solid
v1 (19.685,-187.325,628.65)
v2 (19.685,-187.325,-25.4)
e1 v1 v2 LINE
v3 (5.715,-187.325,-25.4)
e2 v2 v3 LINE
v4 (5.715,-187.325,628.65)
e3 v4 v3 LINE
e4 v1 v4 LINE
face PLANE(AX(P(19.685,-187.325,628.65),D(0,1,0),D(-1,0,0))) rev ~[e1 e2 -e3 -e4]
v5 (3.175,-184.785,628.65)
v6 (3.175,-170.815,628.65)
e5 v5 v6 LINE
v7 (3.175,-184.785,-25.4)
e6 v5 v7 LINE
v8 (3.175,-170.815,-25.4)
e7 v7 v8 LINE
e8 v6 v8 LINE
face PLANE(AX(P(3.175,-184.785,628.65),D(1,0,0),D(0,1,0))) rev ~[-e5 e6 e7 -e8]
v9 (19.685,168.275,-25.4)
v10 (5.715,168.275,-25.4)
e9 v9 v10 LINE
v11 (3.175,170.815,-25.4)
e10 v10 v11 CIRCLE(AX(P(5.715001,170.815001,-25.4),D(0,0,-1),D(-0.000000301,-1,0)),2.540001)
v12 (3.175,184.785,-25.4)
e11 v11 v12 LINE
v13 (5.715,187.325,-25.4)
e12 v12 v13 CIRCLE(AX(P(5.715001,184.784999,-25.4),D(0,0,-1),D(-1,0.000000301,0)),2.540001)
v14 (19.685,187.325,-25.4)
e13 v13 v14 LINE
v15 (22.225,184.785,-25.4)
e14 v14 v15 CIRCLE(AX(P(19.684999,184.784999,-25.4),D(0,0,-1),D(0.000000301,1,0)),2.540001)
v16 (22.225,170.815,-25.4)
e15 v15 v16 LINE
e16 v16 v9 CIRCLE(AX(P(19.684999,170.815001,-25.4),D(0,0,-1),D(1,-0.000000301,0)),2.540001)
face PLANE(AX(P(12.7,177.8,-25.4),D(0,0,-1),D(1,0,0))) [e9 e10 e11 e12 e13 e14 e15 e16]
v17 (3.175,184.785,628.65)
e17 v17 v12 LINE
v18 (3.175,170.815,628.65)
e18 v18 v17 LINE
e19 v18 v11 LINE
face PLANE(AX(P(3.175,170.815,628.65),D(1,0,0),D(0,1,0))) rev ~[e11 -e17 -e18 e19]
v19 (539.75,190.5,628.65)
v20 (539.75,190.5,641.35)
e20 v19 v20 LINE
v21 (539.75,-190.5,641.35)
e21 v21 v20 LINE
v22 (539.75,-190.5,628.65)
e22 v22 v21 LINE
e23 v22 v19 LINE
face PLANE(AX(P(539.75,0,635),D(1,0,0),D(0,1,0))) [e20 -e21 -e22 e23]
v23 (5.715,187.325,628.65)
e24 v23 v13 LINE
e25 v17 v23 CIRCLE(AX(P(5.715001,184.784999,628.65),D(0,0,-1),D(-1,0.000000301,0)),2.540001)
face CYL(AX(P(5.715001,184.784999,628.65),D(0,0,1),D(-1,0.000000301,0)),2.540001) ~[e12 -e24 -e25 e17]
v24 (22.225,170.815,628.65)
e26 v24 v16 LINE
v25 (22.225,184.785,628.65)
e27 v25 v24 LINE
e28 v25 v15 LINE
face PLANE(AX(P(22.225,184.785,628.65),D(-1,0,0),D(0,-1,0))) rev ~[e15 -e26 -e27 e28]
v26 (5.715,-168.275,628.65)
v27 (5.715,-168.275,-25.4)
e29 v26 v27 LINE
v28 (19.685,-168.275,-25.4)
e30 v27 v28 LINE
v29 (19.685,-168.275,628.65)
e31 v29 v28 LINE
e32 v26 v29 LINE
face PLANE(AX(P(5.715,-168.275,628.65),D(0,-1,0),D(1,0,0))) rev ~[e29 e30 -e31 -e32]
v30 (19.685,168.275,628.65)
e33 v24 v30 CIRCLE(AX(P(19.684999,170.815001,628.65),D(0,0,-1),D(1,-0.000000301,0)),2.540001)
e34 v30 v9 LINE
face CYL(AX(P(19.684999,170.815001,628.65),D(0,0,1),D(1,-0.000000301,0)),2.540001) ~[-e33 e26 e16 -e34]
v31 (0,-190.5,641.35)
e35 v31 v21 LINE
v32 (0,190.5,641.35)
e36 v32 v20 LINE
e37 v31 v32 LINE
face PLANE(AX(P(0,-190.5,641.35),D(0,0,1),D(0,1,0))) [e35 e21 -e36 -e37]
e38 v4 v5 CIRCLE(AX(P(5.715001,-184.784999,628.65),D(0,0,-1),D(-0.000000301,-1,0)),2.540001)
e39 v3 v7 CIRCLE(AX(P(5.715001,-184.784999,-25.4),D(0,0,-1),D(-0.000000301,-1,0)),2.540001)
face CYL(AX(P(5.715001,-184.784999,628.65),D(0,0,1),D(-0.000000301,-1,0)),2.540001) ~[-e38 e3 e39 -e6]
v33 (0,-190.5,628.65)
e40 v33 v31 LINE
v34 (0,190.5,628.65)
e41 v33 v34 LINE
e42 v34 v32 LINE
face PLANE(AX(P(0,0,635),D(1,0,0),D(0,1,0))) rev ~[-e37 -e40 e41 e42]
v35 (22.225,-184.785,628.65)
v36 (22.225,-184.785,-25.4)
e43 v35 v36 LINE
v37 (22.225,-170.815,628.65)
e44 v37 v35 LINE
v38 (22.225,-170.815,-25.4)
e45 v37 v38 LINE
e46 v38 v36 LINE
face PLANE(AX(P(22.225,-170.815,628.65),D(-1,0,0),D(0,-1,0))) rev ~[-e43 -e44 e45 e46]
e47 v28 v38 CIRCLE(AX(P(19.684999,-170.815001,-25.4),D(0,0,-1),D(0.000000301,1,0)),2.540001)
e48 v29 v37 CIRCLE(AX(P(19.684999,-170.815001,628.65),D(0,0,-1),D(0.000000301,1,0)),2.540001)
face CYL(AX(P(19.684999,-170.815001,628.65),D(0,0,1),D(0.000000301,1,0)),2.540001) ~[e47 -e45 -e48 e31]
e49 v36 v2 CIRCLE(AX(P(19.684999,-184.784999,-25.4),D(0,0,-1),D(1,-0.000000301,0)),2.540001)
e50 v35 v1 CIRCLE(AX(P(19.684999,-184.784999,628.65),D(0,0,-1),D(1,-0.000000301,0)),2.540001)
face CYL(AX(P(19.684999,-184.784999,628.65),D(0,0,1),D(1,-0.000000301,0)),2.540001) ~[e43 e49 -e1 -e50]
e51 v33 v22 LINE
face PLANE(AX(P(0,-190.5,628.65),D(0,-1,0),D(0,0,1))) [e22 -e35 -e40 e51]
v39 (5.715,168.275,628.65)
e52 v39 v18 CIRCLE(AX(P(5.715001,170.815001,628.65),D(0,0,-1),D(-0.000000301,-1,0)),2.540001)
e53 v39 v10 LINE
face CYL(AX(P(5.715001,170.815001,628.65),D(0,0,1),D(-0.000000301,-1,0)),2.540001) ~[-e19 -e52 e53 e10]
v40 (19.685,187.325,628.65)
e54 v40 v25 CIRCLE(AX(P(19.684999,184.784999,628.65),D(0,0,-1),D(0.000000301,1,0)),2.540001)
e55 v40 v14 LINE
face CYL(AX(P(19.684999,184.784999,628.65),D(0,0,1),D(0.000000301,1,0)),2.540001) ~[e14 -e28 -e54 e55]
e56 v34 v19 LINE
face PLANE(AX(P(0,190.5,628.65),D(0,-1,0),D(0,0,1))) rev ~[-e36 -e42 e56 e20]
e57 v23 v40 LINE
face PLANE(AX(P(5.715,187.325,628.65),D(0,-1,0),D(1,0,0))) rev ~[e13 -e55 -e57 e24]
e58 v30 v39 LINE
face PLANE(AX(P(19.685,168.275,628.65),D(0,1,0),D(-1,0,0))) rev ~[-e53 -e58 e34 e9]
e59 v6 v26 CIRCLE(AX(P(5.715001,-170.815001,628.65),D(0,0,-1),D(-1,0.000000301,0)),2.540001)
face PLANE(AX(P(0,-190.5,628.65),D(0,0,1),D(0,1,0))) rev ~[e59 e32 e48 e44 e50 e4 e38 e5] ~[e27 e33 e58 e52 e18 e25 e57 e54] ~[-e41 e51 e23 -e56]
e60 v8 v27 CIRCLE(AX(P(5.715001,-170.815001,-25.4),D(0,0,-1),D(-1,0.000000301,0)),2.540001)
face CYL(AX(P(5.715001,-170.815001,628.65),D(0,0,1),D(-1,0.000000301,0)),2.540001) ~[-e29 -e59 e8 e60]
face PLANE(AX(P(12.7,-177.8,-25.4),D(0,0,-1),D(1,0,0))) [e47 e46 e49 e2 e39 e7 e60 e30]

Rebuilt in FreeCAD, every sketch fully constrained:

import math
import FreeCAD as App
import Part
import Sketcher
from FreeCAD import Vector
Q = App.Units.Quantity


def add_polygon(sketch, points):
    """Adds a closed chain of lines whose ends are joined by coincident constraints."""
    first, n = sketch.GeometryCount, len(points)
    for a, b in zip(points, points[1:] + points[:1]):
        sketch.addGeometry(Part.LineSegment(App.Vector(*a, 0), App.Vector(*b, 0)), False)
    for i in range(n):
        sketch.addConstraint(Sketcher.Constraint("Coincident", first + i, 2, first + (i + 1) % n, 1))

doc = App.newDocument("Part")
params = doc.addObject("Spreadsheet::Sheet", "Params")
for row, (alias, value) in enumerate([
    ("sketch1_width", "15 in"),
    ("sketch1_height", "0.5 in"),
    ("pad1_length", "21.25 in"),
    ("sketch2_radius", "0.1 in"),
    ("sketch2_width", "0.55 in"),
    ("pad2_length", "25.75 in"),
], start=1):
    params.set(f"A{row}", alias)
    params.set(f"B{row}", "=" + value)
    params.setAlias(f"B{row}", alias)

body = doc.addObject("PartDesign::Body", "Body")

sketch1 = doc.addObject("Sketcher::SketchObject", "Sketch")
body.addObject(sketch1)
sketch1.AttachmentSupport = (doc.YZ_Plane, [""])
sketch1.MapMode = "FlatFace"
add_polygon(sketch1, [(-190.5, 641.35), (-190.5, 628.65), (190.5, 628.65), (190.5, 641.35)])
sketch1.addConstraint([
    Sketcher.Constraint("Vertical", 0),
    Sketcher.Constraint("Horizontal", 1),
    Sketcher.Constraint("Vertical", 2),
    Sketcher.Constraint("Horizontal", 3),
    Sketcher.Constraint("DistanceX", 1, 1, 1, 2, Q("15 in")),
    Sketcher.Constraint("DistanceY", 0, 2, 0, 1, Q("0.5 in")),
    Sketcher.Constraint("DistanceX", 0, 2, -1, 1, Q("7.5 in")),
    Sketcher.Constraint("DistanceY", -1, 1, 0, 2, Q("24.75 in")),
])
sketch1.setExpression("Constraints[8]", "Params.sketch1_width")
sketch1.setExpression("Constraints[9]", "Params.sketch1_height")
pad1 = doc.addObject("PartDesign::Pad", "Pad")
body.addObject(pad1)
pad1.Profile = sketch1
pad1.setExpression("Length", "Params.pad1_length")

sketch2 = doc.addObject("Sketcher::SketchObject", "Sketch001")
body.addObject(sketch2)
sketch2.AttachmentSupport = (doc.XY_Plane, [""])
sketch2.MapMode = "FlatFace"
sketch2.AttachmentOffset = App.Placement(Vector(0, 0, 24.75 * 25.4), App.Rotation())
sketch2.addGeometry([
    Part.LineSegment(Vector(19.685, -187.325, 0), Vector(5.715, -187.325, 0)),
    Part.ArcOfCircle(Part.Circle(Vector(5.715001, -184.784999, 0), Vector(0, 0, 1), 2.540001), math.radians(-179.999983), math.radians(-90.000017)),
    Part.LineSegment(Vector(3.175, -184.785, 0), Vector(3.175, -170.815, 0)),
    Part.ArcOfCircle(Part.Circle(Vector(5.715001, -170.815001, 0), Vector(0, 0, 1), 2.540001), math.radians(90.000017), math.radians(179.999983)),
    Part.LineSegment(Vector(5.715, -168.275, 0), Vector(19.685, -168.275, 0)),
    Part.ArcOfCircle(Part.Circle(Vector(19.684999, -170.815001, 0), Vector(0, 0, 1), 2.540001), math.radians(0.000017), math.radians(89.999983)),
    Part.LineSegment(Vector(22.225, -170.815, 0), Vector(22.225, -184.785, 0)),
    Part.ArcOfCircle(Part.Circle(Vector(19.684999, -184.784999, 0), Vector(0, 0, 1), 2.540001), math.radians(-89.999983), math.radians(-0.000017)),
    Part.ArcOfCircle(Part.Circle(Vector(19.684999, 184.784999, 0), Vector(0, 0, 1), 2.540001), math.radians(0.000017), math.radians(89.999983)),
    Part.LineSegment(Vector(22.225, 184.785, 0), Vector(22.225, 170.815, 0)),
    Part.ArcOfCircle(Part.Circle(Vector(19.684999, 170.815001, 0), Vector(0, 0, 1), 2.540001), math.radians(-89.999983), math.radians(-0.000017)),
    Part.LineSegment(Vector(19.685, 168.275, 0), Vector(5.715, 168.275, 0)),
    Part.ArcOfCircle(Part.Circle(Vector(5.715001, 170.815001, 0), Vector(0, 0, 1), 2.540001), math.radians(-179.999983), math.radians(-90.000017)),
    Part.LineSegment(Vector(3.175, 170.815, 0), Vector(3.175, 184.785, 0)),
    Part.ArcOfCircle(Part.Circle(Vector(5.715001, 184.784999, 0), Vector(0, 0, 1), 2.540001), math.radians(90.000017), math.radians(179.999983)),
    Part.LineSegment(Vector(5.715, 187.325, 0), Vector(19.685, 187.325, 0)),
], False)
sketch2.addConstraint([
    Sketcher.Constraint("Tangent", 0, 2, 1, 2),
    Sketcher.Constraint("Tangent", 1, 1, 2, 1),
    Sketcher.Constraint("Tangent", 2, 2, 3, 2),
    Sketcher.Constraint("Tangent", 3, 1, 4, 1),
    Sketcher.Constraint("Tangent", 4, 2, 5, 2),
    Sketcher.Constraint("Tangent", 5, 1, 6, 1),
    Sketcher.Constraint("Tangent", 6, 2, 7, 2),
    Sketcher.Constraint("Tangent", 7, 1, 0, 1),
    Sketcher.Constraint("Tangent", 8, 1, 9, 1),
    Sketcher.Constraint("Tangent", 9, 2, 10, 2),
    Sketcher.Constraint("Tangent", 10, 1, 11, 1),
    Sketcher.Constraint("Tangent", 11, 2, 12, 2),
    Sketcher.Constraint("Tangent", 12, 1, 13, 1),
    Sketcher.Constraint("Tangent", 13, 2, 14, 2),
    Sketcher.Constraint("Tangent", 14, 1, 15, 1),
    Sketcher.Constraint("Tangent", 15, 2, 8, 2),
    Sketcher.Constraint("Horizontal", 0),
    Sketcher.Constraint("Vertical", 2),
    Sketcher.Constraint("Horizontal", 4),
    Sketcher.Constraint("Vertical", 6),
    Sketcher.Constraint("Vertical", 9),
    Sketcher.Constraint("Horizontal", 11),
    Sketcher.Constraint("Vertical", 13),
    Sketcher.Constraint("Horizontal", 15),
    Sketcher.Constraint("Equal", 1, 3),
    Sketcher.Constraint("Equal", 3, 5),
    Sketcher.Constraint("Equal", 5, 7),
    Sketcher.Constraint("Equal", 7, 8),
    Sketcher.Constraint("Equal", 8, 10),
    Sketcher.Constraint("Equal", 10, 12),
    Sketcher.Constraint("Equal", 12, 14),
    Sketcher.Constraint("Symmetric", 7, 3, 8, 3, -1),
    Sketcher.Constraint("Symmetric", 3, 3, 12, 3, -1),
    Sketcher.Constraint("Equal", 15, 2),
    Sketcher.Constraint("Radius", 1, Q("0.1 in")),
    Sketcher.Constraint("DistanceY", 5, 3, 8, 3, Q("14 in")),
    Sketcher.Constraint("DistanceX", 0, 2, 0, 1, Q("0.55 in")),
    Sketcher.Constraint("DistanceX", -1, 1, 1, 3, Q("0.225 in")),
])
sketch2.setExpression("Constraints[34]", "Params.sketch2_radius")
sketch2.setExpression("Constraints[36]", "Params.sketch2_width")
pad2 = doc.addObject("PartDesign::Pad", "Pad001")
body.addObject(pad2)
pad2.Profile = sketch2
pad2.setExpression("Length", "Params.pad2_length")
pad2.Reversed = True

doc.recompute()
